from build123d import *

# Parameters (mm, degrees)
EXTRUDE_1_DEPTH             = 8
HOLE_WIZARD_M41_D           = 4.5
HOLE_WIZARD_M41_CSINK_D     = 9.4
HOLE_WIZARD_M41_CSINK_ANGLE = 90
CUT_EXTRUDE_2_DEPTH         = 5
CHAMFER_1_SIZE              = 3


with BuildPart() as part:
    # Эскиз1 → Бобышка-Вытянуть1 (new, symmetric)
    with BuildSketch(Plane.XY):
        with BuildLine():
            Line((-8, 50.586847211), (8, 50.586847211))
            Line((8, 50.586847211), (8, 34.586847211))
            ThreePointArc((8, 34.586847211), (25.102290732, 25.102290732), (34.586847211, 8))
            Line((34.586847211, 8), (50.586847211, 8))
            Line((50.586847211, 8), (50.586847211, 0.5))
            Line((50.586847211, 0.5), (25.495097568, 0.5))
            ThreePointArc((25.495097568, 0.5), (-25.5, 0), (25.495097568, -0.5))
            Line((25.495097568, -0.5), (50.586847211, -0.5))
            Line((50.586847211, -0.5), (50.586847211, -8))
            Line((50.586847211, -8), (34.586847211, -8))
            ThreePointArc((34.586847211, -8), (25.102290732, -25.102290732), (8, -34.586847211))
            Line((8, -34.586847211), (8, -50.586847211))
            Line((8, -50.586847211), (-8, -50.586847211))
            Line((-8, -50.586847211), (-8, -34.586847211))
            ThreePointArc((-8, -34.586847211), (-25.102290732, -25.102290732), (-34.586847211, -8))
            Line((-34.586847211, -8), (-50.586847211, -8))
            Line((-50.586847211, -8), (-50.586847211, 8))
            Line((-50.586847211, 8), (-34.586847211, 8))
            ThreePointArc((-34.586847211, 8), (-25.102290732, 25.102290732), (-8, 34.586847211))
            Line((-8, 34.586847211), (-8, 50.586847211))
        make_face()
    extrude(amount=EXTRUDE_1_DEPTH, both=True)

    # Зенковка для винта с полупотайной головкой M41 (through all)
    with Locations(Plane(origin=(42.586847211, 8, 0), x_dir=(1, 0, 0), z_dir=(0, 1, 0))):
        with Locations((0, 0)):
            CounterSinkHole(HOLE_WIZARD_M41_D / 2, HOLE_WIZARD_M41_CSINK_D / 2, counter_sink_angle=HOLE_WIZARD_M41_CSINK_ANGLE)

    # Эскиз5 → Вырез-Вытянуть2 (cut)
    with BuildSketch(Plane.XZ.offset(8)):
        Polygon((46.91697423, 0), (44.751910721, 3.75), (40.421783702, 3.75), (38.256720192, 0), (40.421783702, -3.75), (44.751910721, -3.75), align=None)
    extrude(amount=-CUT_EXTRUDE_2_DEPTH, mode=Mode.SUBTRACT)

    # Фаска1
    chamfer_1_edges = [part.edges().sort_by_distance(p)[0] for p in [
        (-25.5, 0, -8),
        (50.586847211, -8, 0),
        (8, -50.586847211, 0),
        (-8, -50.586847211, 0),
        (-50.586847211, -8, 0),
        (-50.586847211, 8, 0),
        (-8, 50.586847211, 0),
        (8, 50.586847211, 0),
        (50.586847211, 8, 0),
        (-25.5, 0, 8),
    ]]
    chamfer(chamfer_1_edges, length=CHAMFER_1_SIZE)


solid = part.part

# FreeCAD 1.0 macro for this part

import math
import FreeCAD as App
import Part
import Sketcher

V = App.Vector
Q = App.Units.Quantity


def edges_at(feature, points):
    """Names of the edges that pass closest to the given points."""
    edges = feature.Shape.Edges
    near = lambda p: min(range(len(edges)), key=lambda i: edges[i].distToShape(Part.Vertex(*p))[0])
    return sorted({f"Edge{near(p) + 1}" for p in points})

doc = App.newDocument("Part")
body = doc.addObject("PartDesign::Body", "Body")

# Sketch on XY plane
sketch1 = body.newObject("Sketcher::SketchObject", "Sketch")
sketch1.AttachmentSupport = (doc.getObject("XY_Plane"), [""])
sketch1.MapMode = "FlatFace"
sketch1.addGeometry([
    Part.LineSegment(V(8, 50.6, 0), V(-8, 50.6, 0)),  # 0
    Part.LineSegment(V(-8, 50.6, 0), V(-8, 34.6, 0)),  # 1
    Part.ArcOfCircle(Part.Circle(V(0, 0, 0), V(0, 0, 1), 35.5), math.radians(103), math.radians(167)),  # 2
    Part.LineSegment(V(-34.6, 8, 0), V(-50.6, 8, 0)),  # 3
    Part.LineSegment(V(-50.6, 8, 0), V(-50.6, -8, 0)),  # 4
    Part.LineSegment(V(-50.6, -8, 0), V(-34.6, -8, 0)),  # 5
    Part.ArcOfCircle(Part.Circle(V(0, 0, 0), V(0, 0, 1), 35.5), math.radians(-167), math.radians(-103)),  # 6
    Part.LineSegment(V(-8, -34.6, 0), V(-8, -50.6, 0)),  # 7
    Part.LineSegment(V(-8, -50.6, 0), V(8, -50.6, 0)),  # 8
    Part.LineSegment(V(8, -50.6, 0), V(8, -34.6, 0)),  # 9
    Part.ArcOfCircle(Part.Circle(V(0, 0, 0), V(0, 0, 1), 35.5), math.radians(-77), math.radians(-13)),  # 10
    Part.LineSegment(V(34.6, -8, 0), V(50.6, -8, 0)),  # 11
    Part.LineSegment(V(50.6, -8, 0), V(50.6, -0.5, 0)),  # 12
    Part.LineSegment(V(50.6, -0.5, 0), V(25.5, -0.5, 0)),  # 13
    Part.ArcOfCircle(Part.Circle(V(0, 0, 0), V(0, 0, 1), 25.5), math.radians(1), math.radians(359)),  # 14
    Part.LineSegment(V(25.5, 0.5, 0), V(50.6, 0.5, 0)),  # 15
    Part.LineSegment(V(50.6, 0.5, 0), V(50.6, 8, 0)),  # 16
    Part.LineSegment(V(50.6, 8, 0), V(34.6, 8, 0)),  # 17
    Part.ArcOfCircle(Part.Circle(V(0, 0, 0), V(0, 0, 1), 35.5), math.radians(13), math.radians(77)),  # 18
    Part.LineSegment(V(8, 34.6, 0), V(8, 50.6, 0)),  # 19
], False)
sketch1.addConstraint([
    Sketcher.Constraint("Coincident", 0, 2, 1, 1),
    Sketcher.Constraint("Coincident", 1, 2, 2, 1),
    Sketcher.Constraint("Coincident", 2, 2, 3, 1),
    Sketcher.Constraint("Coincident", 3, 2, 4, 1),
    Sketcher.Constraint("Coincident", 4, 2, 5, 1),
    Sketcher.Constraint("Coincident", 5, 2, 6, 1),
    Sketcher.Constraint("Coincident", 6, 2, 7, 1),
    Sketcher.Constraint("Coincident", 7, 2, 8, 1),
    Sketcher.Constraint("Coincident", 8, 2, 9, 1),
    Sketcher.Constraint("Coincident", 9, 2, 10, 1),
    Sketcher.Constraint("Coincident", 10, 2, 11, 1),
    Sketcher.Constraint("Coincident", 11, 2, 12, 1),
    Sketcher.Constraint("Coincident", 12, 2, 13, 1),
    Sketcher.Constraint("Coincident", 13, 2, 14, 2),
    Sketcher.Constraint("Coincident", 14, 1, 15, 1),
    Sketcher.Constraint("Coincident", 15, 2, 16, 1),
    Sketcher.Constraint("Coincident", 16, 2, 17, 1),
    Sketcher.Constraint("Coincident", 17, 2, 18, 1),
    Sketcher.Constraint("Coincident", 18, 2, 19, 1),
    Sketcher.Constraint("Coincident", 19, 2, 0, 1),
    Sketcher.Constraint("Horizontal", 0),
    Sketcher.Constraint("Vertical", 1),
    Sketcher.Constraint("Horizontal", 3),
    Sketcher.Constraint("Vertical", 4),
    Sketcher.Constraint("Horizontal", 5),
    Sketcher.Constraint("Vertical", 7),
    Sketcher.Constraint("Horizontal", 8),
    Sketcher.Constraint("Vertical", 9),
    Sketcher.Constraint("Horizontal", 11),
    Sketcher.Constraint("Vertical", 12),
    Sketcher.Constraint("Horizontal", 13),
    Sketcher.Constraint("Horizontal", 15),
    Sketcher.Constraint("Vertical", 16),
    Sketcher.Constraint("Horizontal", 17),
    Sketcher.Constraint("Vertical", 19),
    Sketcher.Constraint("Coincident", 2, 3, -1, 1),
    Sketcher.Constraint("Coincident", 6, 3, -1, 1),
    Sketcher.Constraint("Coincident", 10, 3, -1, 1),
    Sketcher.Constraint("Coincident", 14, 3, -1, 1),
    Sketcher.Constraint("Coincident", 18, 3, -1, 1),
    Sketcher.Constraint("Equal", 2, 6),
    Sketcher.Constraint("Equal", 6, 10),
    Sketcher.Constraint("Equal", 10, 18),
    Sketcher.Constraint("Symmetric", 0, 2, 8, 2, -1, 1),
    Sketcher.Constraint("Symmetric", 3, 2, 11, 2, -1, 1),
    Sketcher.Constraint("Symmetric", 4, 2, 16, 2, -1, 1),
    Sketcher.Constraint("Horizontal", 6, 2, 9, 2),
    Sketcher.Constraint("Horizontal", 5, 2, 10, 2),
    Sketcher.Constraint("Horizontal", 1, 2, 18, 2),
    Sketcher.Constraint("Vertical", 13, 2, 14, 1),
    Sketcher.Constraint("Equal", 0, 3),
    Sketcher.Constraint("Equal", 17, 1),
    Sketcher.Constraint("Equal", 1, 4),
    Sketcher.Constraint("Radius", 2, Q("35.5 mm")),
    Sketcher.Constraint("Radius", 14, Q("25.5 mm")),
    Sketcher.Constraint("DistanceX", 0, 2, 0, 1, Q("16 mm")),
    Sketcher.Constraint("DistanceY", 12, 1, 12, 2, Q("7.5 mm")),
])
pad1 = body.newObject("PartDesign::Pad", "Pad")
pad1.Profile = sketch1
pad1.Length = 16
pad1.Midplane = True

# Sketch on XZ plane
sketch2 = body.newObject("Sketcher::SketchObject", "Sketch001")
sketch2.AttachmentSupport = (doc.getObject("XZ_Plane"), [""])
sketch2.MapMode = "FlatFace"
sketch2.AttachmentOffset = App.Placement(V(0, 0, -8), App.Rotation())
sketch2.addGeometry(Part.Circle(V(42.6, 0, 0), V(0, 0, 1), 2.2), False)
sketch2.addConstraint([
    Sketcher.Constraint("PointOnObject", 0, 3, -1),
    Sketcher.Constraint("Diameter", 0, Q("4.5 mm")),
    Sketcher.Constraint("DistanceX", -1, 1, 0, 3, Q("42.586847 mm")),
])
doc.recompute()
hole = body.newObject("PartDesign::Hole", "Hole")
hole.Profile = sketch2
hole.ThreadType = "None"
hole.Diameter = 4.5
hole.DepthType = "ThroughAll"
hole.HoleCutType = "Countersink"
hole.HoleCutDiameter = 9.4
hole.HoleCutCountersinkAngle = 90
hole.Reversed = True

# Sketch on XZ plane
sketch3 = body.newObject("Sketcher::SketchObject", "Sketch002")
sketch3.AttachmentSupport = (doc.getObject("XZ_Plane"), [""])
sketch3.MapMode = "FlatFace"
sketch3.AttachmentOffset = App.Placement(V(0, 0, 8), App.Rotation())
sketch3.addGeometry([
    Part.LineSegment(V(46.9, 0, 0), V(44.8, 3.8, 0)),  # 0
    Part.LineSegment(V(44.8, 3.8, 0), V(40.4, 3.8, 0)),  # 1
    Part.LineSegment(V(40.4, 3.8, 0), V(38.3, 0, 0)),  # 2
    Part.LineSegment(V(38.3, 0, 0), V(40.4, -3.8, 0)),  # 3
    Part.LineSegment(V(40.4, -3.8, 0), V(44.8, -3.8, 0)),  # 4
    Part.LineSegment(V(44.8, -3.8, 0), V(46.9, 0, 0)),  # 5
], False)
sketch3.addConstraint([
    Sketcher.Constraint("Coincident", 0, 2, 1, 1),
    Sketcher.Constraint("Coincident", 1, 2, 2, 1),
    Sketcher.Constraint("Coincident", 2, 2, 3, 1),
    Sketcher.Constraint("Coincident", 3, 2, 4, 1),
    Sketcher.Constraint("Coincident", 4, 2, 5, 1),
    Sketcher.Constraint("Coincident", 5, 2, 0, 1),
    Sketcher.Constraint("Horizontal", 1),
    Sketcher.Constraint("Horizontal", 4),
    Sketcher.Constraint("Symmetric", 1, 2, 3, 2, -1),
    Sketcher.Constraint("PointOnObject", 2, 2, -1),
    Sketcher.Constraint("PointOnObject", 5, 2, -1),
    Sketcher.Constraint("Parallel", 0, 3),
    Sketcher.Constraint("Parallel", 2, 5),
    Sketcher.Constraint("Angle", 0, Q("120 deg")),
    Sketcher.Constraint("DistanceY", 3, 2, 1, 2, Q("7.5 mm")),
    Sketcher.Constraint("DistanceX", 1, 2, 1, 1, Q("4.330127 mm")),
    Sketcher.Constraint("DistanceX", -1, 1, 0, 2, Q("44.751911 mm")),
])
pocket1 = body.newObject("PartDesign::Pocket", "Pocket")
pocket1.Profile = sketch3
pocket1.Length = 5
doc.recompute()

chamfer = body.newObject("PartDesign::Chamfer", "Chamfer")
chamfer.Base = (pocket1, edges_at(pocket1, [
    (-25.5, 0, -8),
    (50.587, -8, 0),
    (8, -50.587, 0),
    (-8, -50.587, 0),
    (-50.587, -8, 0),
    (-50.587, 8, 0),
    (-8, 50.587, 0),
    (8, 50.587, 0),
    (50.587, 8, 0),
    (-25.5, 0, 8),
]))
chamfer.Size = 3

doc.recompute()
